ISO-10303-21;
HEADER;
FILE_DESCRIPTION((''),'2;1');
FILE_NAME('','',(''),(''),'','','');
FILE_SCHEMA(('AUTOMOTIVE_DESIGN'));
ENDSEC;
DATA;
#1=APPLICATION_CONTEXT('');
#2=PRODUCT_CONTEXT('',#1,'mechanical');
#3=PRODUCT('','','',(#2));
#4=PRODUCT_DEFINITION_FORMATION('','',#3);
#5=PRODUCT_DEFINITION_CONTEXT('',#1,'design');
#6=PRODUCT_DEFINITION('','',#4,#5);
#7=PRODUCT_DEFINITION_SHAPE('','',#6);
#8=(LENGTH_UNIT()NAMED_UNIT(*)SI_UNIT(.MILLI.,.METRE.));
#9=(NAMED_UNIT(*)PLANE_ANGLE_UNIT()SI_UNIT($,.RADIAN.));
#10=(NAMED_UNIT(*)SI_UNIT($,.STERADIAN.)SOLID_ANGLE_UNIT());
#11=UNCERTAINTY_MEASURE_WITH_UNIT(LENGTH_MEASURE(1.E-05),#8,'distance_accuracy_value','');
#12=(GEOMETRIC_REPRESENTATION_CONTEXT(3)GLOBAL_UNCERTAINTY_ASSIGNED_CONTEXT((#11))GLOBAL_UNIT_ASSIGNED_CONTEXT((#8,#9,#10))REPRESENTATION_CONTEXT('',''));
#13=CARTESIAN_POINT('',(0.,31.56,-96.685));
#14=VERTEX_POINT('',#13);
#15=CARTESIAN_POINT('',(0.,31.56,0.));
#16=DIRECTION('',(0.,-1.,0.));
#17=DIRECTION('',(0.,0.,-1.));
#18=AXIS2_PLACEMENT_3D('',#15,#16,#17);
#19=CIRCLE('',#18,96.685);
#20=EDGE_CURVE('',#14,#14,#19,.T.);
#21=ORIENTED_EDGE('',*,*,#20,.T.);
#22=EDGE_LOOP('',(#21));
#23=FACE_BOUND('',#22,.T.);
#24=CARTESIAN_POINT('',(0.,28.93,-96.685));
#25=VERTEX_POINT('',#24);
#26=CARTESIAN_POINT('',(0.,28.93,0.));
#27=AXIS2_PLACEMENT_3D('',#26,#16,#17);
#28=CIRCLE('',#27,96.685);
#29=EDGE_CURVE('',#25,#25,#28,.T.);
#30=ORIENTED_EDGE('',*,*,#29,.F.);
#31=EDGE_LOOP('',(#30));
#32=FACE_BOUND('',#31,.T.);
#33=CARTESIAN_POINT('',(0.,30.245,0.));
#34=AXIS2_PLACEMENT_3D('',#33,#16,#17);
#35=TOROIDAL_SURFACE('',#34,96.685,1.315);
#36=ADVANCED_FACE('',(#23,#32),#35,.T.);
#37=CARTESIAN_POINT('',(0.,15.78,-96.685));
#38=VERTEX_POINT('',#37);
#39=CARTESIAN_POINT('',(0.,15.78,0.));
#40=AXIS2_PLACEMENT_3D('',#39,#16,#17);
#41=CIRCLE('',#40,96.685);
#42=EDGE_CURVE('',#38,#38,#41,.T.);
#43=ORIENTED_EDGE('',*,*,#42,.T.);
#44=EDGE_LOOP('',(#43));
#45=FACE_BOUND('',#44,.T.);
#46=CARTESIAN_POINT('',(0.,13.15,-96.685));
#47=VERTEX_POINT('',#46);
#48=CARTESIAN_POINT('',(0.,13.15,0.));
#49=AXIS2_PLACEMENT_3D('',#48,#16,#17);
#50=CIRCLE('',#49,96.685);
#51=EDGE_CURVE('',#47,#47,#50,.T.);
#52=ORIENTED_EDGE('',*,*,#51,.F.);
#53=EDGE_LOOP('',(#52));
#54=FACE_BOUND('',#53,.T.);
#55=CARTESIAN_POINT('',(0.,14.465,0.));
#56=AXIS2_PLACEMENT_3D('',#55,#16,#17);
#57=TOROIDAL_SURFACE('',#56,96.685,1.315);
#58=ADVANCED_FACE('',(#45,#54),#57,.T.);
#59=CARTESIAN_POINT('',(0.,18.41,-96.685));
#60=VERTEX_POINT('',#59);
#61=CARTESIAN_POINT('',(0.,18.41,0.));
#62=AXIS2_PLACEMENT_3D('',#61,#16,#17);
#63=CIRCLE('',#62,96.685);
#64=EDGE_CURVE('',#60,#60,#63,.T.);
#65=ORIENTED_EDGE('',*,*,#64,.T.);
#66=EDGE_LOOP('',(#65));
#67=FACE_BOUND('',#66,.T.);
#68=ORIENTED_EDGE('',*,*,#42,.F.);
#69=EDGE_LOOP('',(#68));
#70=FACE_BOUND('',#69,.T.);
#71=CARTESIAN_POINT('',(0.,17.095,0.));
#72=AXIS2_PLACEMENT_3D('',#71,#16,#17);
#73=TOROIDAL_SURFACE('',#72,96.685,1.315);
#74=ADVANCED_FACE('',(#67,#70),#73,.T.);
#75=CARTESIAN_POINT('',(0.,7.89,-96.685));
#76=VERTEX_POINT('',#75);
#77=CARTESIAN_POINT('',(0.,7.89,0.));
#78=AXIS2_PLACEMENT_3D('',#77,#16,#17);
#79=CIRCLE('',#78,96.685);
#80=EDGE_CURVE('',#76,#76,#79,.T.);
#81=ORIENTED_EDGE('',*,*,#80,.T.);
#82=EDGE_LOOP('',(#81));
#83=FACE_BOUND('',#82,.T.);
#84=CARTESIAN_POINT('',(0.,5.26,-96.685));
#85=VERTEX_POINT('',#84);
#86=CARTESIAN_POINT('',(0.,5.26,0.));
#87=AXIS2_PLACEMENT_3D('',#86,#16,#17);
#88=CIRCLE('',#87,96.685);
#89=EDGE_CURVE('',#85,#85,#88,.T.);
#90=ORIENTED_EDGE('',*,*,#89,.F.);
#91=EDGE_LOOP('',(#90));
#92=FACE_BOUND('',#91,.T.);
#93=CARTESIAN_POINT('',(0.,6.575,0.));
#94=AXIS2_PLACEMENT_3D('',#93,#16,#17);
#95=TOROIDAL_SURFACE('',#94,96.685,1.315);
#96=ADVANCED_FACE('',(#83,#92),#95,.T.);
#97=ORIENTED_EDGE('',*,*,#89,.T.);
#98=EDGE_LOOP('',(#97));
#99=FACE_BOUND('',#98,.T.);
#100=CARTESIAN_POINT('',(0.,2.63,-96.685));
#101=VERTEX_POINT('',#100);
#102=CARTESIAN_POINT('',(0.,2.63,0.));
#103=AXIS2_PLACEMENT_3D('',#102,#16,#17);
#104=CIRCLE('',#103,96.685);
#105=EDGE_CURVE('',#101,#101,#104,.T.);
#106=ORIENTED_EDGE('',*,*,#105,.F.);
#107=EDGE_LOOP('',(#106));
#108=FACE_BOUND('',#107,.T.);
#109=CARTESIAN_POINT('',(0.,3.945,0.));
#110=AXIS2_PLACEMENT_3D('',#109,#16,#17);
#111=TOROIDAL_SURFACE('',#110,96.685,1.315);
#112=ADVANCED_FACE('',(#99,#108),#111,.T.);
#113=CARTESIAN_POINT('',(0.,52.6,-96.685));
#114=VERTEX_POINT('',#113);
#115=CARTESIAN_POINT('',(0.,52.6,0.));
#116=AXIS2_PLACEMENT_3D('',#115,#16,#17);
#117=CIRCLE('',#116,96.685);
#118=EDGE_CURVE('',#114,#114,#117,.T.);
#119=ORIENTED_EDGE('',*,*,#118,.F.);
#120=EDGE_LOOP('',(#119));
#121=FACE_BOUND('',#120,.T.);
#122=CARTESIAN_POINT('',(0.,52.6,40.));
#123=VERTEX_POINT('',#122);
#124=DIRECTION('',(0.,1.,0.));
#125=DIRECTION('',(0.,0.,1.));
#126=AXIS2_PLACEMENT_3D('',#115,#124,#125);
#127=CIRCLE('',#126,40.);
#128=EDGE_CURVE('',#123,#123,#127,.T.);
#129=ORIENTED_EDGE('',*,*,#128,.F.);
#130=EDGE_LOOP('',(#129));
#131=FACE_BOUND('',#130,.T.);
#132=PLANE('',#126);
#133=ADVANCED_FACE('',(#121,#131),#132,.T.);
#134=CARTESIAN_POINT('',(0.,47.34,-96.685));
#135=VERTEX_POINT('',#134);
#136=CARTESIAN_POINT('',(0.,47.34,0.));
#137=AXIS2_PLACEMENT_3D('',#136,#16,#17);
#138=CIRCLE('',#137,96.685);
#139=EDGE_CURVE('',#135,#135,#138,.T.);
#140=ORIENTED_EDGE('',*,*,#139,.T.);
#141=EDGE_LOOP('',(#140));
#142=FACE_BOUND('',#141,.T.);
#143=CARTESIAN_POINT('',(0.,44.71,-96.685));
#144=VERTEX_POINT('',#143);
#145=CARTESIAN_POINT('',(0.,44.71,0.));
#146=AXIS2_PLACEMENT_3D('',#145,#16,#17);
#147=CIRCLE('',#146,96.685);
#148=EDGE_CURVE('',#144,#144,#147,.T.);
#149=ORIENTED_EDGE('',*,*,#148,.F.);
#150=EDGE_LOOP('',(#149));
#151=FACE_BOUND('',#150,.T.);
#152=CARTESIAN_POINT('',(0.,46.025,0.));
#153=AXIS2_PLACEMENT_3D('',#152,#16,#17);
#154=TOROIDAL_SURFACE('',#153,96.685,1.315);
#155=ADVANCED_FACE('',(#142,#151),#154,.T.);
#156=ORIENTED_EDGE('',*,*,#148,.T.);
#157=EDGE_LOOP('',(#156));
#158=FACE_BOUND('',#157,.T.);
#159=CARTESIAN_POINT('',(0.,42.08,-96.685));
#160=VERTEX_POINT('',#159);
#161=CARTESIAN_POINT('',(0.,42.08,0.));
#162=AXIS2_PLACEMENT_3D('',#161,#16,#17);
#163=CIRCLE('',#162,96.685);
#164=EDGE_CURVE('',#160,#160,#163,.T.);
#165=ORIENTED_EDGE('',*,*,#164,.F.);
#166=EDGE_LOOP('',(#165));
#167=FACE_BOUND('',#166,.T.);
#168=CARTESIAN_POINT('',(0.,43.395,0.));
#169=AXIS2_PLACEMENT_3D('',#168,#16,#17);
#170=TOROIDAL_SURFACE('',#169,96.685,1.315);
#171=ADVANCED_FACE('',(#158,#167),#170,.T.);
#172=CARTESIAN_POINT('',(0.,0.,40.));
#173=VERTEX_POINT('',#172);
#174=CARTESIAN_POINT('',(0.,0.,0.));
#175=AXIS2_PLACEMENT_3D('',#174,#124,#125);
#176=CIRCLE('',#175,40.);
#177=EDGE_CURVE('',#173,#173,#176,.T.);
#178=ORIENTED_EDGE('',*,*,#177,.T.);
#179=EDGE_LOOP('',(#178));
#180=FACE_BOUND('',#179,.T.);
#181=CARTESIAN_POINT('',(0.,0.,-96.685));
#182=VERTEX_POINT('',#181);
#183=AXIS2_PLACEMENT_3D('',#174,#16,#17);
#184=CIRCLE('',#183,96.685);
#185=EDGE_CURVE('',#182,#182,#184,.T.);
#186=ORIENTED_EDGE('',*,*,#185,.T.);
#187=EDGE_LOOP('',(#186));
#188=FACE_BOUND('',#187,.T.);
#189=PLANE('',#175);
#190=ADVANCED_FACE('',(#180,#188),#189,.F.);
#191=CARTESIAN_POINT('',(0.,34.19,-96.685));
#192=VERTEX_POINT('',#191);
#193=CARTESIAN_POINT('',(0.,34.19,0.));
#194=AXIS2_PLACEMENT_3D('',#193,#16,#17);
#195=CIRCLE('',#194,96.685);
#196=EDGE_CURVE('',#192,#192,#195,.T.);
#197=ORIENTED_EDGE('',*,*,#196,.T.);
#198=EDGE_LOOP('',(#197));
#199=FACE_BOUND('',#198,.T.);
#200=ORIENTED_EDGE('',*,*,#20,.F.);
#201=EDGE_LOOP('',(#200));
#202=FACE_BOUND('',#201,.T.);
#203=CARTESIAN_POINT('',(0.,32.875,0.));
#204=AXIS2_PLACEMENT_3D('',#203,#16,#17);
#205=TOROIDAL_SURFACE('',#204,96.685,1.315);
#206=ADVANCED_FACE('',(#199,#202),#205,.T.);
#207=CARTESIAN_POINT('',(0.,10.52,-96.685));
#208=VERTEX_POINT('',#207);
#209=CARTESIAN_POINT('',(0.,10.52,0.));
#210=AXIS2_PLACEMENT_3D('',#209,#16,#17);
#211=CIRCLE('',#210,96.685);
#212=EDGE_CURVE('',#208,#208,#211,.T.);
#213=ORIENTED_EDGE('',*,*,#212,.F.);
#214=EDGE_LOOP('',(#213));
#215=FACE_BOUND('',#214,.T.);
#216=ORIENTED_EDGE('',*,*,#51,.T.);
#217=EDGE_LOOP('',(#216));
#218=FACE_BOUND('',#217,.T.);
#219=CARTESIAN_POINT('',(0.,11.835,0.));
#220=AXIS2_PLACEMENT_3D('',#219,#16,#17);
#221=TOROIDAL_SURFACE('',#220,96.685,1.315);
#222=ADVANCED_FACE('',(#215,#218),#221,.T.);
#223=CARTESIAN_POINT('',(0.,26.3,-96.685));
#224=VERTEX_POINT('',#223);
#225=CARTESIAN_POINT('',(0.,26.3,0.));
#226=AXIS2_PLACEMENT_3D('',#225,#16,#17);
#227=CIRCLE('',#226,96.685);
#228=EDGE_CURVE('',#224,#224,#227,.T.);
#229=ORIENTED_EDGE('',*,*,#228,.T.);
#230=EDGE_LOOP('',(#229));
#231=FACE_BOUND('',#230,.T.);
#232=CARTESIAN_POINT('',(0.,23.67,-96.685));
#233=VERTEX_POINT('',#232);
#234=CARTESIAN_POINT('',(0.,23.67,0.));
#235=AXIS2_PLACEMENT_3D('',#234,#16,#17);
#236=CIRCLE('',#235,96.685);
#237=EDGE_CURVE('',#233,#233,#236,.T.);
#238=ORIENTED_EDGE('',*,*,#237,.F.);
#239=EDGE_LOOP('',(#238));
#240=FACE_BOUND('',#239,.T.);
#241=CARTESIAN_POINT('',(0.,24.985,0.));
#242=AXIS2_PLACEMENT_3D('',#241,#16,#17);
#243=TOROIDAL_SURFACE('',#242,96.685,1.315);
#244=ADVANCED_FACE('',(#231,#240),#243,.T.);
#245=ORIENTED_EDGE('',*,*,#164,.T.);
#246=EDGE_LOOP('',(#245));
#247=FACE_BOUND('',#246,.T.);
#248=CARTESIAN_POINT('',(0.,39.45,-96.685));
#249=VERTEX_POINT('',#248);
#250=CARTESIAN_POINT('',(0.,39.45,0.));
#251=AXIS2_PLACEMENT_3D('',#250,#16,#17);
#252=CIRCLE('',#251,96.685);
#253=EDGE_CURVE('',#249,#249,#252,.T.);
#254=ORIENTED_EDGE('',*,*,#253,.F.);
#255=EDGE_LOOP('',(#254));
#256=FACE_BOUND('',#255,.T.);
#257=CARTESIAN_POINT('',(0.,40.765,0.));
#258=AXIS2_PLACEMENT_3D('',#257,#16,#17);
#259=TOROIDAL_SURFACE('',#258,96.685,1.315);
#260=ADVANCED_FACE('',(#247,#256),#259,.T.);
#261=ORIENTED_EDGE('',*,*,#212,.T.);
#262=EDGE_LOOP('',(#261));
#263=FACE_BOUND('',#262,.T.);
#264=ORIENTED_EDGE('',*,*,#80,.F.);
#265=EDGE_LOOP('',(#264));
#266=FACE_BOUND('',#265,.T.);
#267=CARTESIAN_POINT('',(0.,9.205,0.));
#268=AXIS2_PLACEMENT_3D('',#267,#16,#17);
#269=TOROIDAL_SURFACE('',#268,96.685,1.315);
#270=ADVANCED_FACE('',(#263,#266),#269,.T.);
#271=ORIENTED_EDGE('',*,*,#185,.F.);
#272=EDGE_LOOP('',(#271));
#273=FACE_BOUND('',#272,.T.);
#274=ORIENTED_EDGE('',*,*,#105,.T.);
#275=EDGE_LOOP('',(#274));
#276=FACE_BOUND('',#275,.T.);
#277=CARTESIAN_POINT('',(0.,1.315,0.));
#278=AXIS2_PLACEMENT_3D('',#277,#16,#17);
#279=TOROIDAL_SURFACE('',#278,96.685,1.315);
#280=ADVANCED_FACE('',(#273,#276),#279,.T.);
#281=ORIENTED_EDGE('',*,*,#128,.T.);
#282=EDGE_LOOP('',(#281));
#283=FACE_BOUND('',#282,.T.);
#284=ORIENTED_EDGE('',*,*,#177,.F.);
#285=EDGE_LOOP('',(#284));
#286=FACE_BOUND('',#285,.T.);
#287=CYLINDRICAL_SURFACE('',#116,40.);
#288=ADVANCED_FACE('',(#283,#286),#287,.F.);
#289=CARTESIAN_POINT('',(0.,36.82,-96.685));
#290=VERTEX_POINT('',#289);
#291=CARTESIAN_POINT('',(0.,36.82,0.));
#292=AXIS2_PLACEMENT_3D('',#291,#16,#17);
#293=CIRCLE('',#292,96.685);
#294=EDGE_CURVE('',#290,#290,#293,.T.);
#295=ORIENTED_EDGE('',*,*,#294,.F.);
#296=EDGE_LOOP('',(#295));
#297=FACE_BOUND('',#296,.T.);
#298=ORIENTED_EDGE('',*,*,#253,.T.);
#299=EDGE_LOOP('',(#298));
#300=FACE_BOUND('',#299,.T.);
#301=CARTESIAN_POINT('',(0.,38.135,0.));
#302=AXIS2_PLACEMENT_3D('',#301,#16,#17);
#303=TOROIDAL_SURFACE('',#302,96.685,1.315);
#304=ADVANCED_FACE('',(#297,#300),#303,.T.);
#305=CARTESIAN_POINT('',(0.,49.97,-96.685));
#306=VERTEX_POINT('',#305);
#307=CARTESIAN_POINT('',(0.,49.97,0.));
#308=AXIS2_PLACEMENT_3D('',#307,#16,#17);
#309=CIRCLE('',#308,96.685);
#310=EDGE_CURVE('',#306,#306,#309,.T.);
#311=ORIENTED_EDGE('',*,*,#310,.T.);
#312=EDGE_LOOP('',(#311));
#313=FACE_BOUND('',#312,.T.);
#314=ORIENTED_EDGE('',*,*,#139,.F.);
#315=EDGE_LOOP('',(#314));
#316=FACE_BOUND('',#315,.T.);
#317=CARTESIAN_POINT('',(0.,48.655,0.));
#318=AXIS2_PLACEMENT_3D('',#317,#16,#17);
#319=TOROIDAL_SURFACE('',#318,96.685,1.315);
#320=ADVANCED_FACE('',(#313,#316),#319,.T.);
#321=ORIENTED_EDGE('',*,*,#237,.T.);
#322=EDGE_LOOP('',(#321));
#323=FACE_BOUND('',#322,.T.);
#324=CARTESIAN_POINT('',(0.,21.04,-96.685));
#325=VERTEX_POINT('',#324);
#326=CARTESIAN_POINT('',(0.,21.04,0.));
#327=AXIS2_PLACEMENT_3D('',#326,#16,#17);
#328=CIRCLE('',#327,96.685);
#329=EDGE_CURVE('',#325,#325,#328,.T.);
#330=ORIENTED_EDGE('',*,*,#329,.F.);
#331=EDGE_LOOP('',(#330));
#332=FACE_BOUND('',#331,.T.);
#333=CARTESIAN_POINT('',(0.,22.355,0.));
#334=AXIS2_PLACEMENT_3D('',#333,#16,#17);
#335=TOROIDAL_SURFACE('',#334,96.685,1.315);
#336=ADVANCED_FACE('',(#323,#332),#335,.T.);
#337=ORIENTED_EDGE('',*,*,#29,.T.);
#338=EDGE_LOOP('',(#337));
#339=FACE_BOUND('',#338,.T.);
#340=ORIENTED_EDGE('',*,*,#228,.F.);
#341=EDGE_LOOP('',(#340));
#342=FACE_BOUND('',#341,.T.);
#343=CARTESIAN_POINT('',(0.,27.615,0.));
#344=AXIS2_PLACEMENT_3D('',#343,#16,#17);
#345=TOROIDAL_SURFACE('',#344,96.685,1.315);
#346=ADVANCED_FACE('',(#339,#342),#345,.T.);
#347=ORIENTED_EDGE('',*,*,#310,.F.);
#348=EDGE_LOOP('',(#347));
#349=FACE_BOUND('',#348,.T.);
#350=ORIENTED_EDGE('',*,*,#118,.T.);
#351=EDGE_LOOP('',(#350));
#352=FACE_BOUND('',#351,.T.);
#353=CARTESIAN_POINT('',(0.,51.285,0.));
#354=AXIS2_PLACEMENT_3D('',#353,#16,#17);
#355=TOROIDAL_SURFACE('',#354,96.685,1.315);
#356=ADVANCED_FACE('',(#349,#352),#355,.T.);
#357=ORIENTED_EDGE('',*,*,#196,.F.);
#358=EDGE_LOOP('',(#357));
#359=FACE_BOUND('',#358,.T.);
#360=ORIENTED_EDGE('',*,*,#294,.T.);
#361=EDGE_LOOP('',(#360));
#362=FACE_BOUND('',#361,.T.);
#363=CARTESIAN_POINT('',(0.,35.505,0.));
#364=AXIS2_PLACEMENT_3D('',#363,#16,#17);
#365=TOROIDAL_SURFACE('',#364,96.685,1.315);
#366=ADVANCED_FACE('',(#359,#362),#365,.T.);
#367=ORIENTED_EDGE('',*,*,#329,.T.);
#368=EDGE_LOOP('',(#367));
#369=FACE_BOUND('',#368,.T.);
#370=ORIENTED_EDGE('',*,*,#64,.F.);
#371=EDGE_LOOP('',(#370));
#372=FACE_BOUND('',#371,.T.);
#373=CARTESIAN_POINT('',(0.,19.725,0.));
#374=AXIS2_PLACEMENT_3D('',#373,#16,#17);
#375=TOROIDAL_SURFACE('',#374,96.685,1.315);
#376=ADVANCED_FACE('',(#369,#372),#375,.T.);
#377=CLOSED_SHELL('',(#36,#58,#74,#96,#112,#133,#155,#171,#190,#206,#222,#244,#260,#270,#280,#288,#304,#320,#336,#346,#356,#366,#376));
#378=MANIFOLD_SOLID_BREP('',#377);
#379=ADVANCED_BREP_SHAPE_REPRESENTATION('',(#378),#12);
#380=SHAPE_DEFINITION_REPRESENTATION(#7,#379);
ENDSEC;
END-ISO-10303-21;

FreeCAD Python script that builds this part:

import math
import FreeCAD as App
import Part
import Sketcher

V = App.Vector
Q = App.Units.Quantity

doc = App.newDocument("Part")
body = doc.addObject("PartDesign::Body", "Body")

sketch1 = body.newObject("Sketcher::SketchObject", "Sketch")
sketch1.AttachmentSupport = (doc.getObject("XZ_Plane"), [""])
sketch1.MapMode = "FlatFace"
sketch1.addGeometry(Part.Circle(V(0, 0, 0), V(0, 0, 1), 98), False)
sketch1.addGeometry(Part.Circle(V(0, 0, 0), V(0, 0, 1), 40), False)
sketch1.addConstraint(Sketcher.Constraint("Coincident", 0, 3, -1, 1))
sketch1.addConstraint(Sketcher.Constraint("Coincident", 1, 3, -1, 1))
sketch1.addConstraint(Sketcher.Constraint("Diameter", 0, Q("196 mm")))
sketch1.addConstraint(Sketcher.Constraint("Diameter", 1, Q("80 mm")))
pad1 = body.newObject("PartDesign::Pad", "Pad")
pad1.Profile = sketch1
pad1.Length = 52.6
pad1.Reversed = True

sketch2 = body.newObject("Sketcher::SketchObject", "Sketch001")
sketch2.AttachmentSupport = (doc.getObject("XY_Plane"), [""])
sketch2.MapMode = "FlatFace"
sketch2.addGeometry(Part.LineSegment(V(-101.5, 52.6, 0), V(-101.5, 0, 0)), False)
sketch2.addGeometry(Part.LineSegment(V(-101.5, 0, 0), V(-96.7, 0, 0)), False)
sketch2.addGeometry(Part.ArcOfCircle(Part.Circle(V(-96.7, 1.3, 0), V(0, 0, 1), 1.3), math.radians(90), math.radians(270)), False)
sketch2.addGeometry(Part.ArcOfCircle(Part.Circle(V(-96.7, 3.9, 0), V(0, 0, 1), 1.3), math.radians(90), math.radians(270)), False)
sketch2.addGeometry(Part.ArcOfCircle(Part.Circle(V(-96.7, 6.6, 0), V(0, 0, 1), 1.3), math.radians(90), math.radians(270)), False)
sketch2.addGeometry(Part.ArcOfCircle(Part.Circle(V(-96.7, 9.2, 0), V(0, 0, 1), 1.3), math.radians(90), math.radians(270)), False)
sketch2.addGeometry(Part.ArcOfCircle(Part.Circle(V(-96.7, 11.8, 0), V(0, 0, 1), 1.3), math.radians(90), math.radians(270)), False)
sketch2.addGeometry(Part.ArcOfCircle(Part.Circle(V(-96.7, 14.5, 0), V(0, 0, 1), 1.3), math.radians(90), math.radians(270)), False)
sketch2.addGeometry(Part.ArcOfCircle(Part.Circle(V(-96.7, 17.1, 0), V(0, 0, 1), 1.3), math.radians(90), math.radians(270)), False)
sketch2.addGeometry(Part.ArcOfCircle(Part.Circle(V(-96.7, 19.7, 0), V(0, 0, 1), 1.3), math.radians(90), math.radians(270)), False)
sketch2.addGeometry(Part.ArcOfCircle(Part.Circle(V(-96.7, 22.4, 0), V(0, 0, 1), 1.3), math.radians(90), math.radians(270)), False)
sketch2.addGeometry(Part.ArcOfCircle(Part.Circle(V(-96.7, 25, 0), V(0, 0, 1), 1.3), math.radians(90), math.radians(270)), False)
sketch2.addGeometry(Part.ArcOfCircle(Part.Circle(V(-96.7, 27.6, 0), V(0, 0, 1), 1.3), math.radians(90), math.radians(270)), False)
sketch2.addGeometry(Part.ArcOfCircle(Part.Circle(V(-96.7, 30.2, 0), V(0, 0, 1), 1.3), math.radians(90), math.radians(270)), False)
sketch2.addGeometry(Part.ArcOfCircle(Part.Circle(V(-96.7, 32.9, 0), V(0, 0, 1), 1.3), math.radians(90), math.radians(270)), False)
sketch2.addGeometry(Part.ArcOfCircle(Part.Circle(V(-96.7, 35.5, 0), V(0, 0, 1), 1.3), math.radians(90), math.radians(270)), False)
sketch2.addGeometry(Part.ArcOfCircle(Part.Circle(V(-96.7, 38.1, 0), V(0, 0, 1), 1.3), math.radians(90), math.radians(270)), False)
sketch2.addGeometry(Part.ArcOfCircle(Part.Circle(V(-96.7, 40.8, 0), V(0, 0, 1), 1.3), math.radians(90), math.radians(270)), False)
sketch2.addGeometry(Part.ArcOfCircle(Part.Circle(V(-96.7, 43.4, 0), V(0, 0, 1), 1.3), math.radians(90), math.radians(270)), False)
sketch2.addGeometry(Part.ArcOfCircle(Part.Circle(V(-96.7, 46, 0), V(0, 0, 1), 1.3), math.radians(90), math.radians(270)), False)
sketch2.addGeometry(Part.ArcOfCircle(Part.Circle(V(-96.7, 48.7, 0), V(0, 0, 1), 1.3), math.radians(90), math.radians(270)), False)
sketch2.addGeometry(Part.ArcOfCircle(Part.Circle(V(-96.7, 51.3, 0), V(0, 0, 1), 1.3), math.radians(90), math.radians(270)), False)
sketch2.addGeometry(Part.LineSegment(V(-96.7, 52.6, 0), V(-101.5, 52.6, 0)), False)
sketch2.addConstraint(Sketcher.Constraint("Coincident", 0, 2, 1, 1))
sketch2.addConstraint(Sketcher.Constraint("Tangent", 1, 2, 2, 2))
sketch2.addConstraint(Sketcher.Constraint("Tangent", 2, 1, 3, 2))
sketch2.addConstraint(Sketcher.Constraint("Tangent", 3, 1, 4, 2))
sketch2.addConstraint(Sketcher.Constraint("Tangent", 4, 1, 5, 2))
sketch2.addConstraint(Sketcher.Constraint("Tangent", 5, 1, 6, 2))
sketch2.addConstraint(Sketcher.Constraint("Tangent", 6, 1, 7, 2))
sketch2.addConstraint(Sketcher.Constraint("Tangent", 7, 1, 8, 2))
sketch2.addConstraint(Sketcher.Constraint("Tangent", 8, 1, 9, 2))
sketch2.addConstraint(Sketcher.Constraint("Tangent", 9, 1, 10, 2))
sketch2.addConstraint(Sketcher.Constraint("Tangent", 10, 1, 11, 2))
sketch2.addConstraint(Sketcher.Constraint("Tangent", 11, 1, 12, 2))
sketch2.addConstraint(Sketcher.Constraint("Tangent", 12, 1, 13, 2))
sketch2.addConstraint(Sketcher.Constraint("Tangent", 13, 1, 14, 2))
sketch2.addConstraint(Sketcher.Constraint("Tangent", 14, 1, 15, 2))
sketch2.addConstraint(Sketcher.Constraint("Tangent", 15, 1, 16, 2))
sketch2.addConstraint(Sketcher.Constraint("Tangent", 16, 1, 17, 2))
sketch2.addConstraint(Sketcher.Constraint("Tangent", 17, 1, 18, 2))
sketch2.addConstraint(Sketcher.Constraint("Tangent", 18, 1, 19, 2))
sketch2.addConstraint(Sketcher.Constraint("Tangent", 19, 1, 20, 2))
sketch2.addConstraint(Sketcher.Constraint("Tangent", 20, 1, 21, 2))
sketch2.addConstraint(Sketcher.Constraint("Tangent", 21, 1, 22, 1))
sketch2.addConstraint(Sketcher.Constraint("Coincident", 22, 2, 0, 1))
sketch2.addConstraint(Sketcher.Constraint("Vertical", 0))
sketch2.addConstraint(Sketcher.Constraint("Horizontal", 1))
sketch2.addConstraint(Sketcher.Constraint("Horizontal", 22))
sketch2.addConstraint(Sketcher.Constraint("Equal", 2, 3))
sketch2.addConstraint(Sketcher.Constraint("Equal", 3, 4))
sketch2.addConstraint(Sketcher.Constraint("Equal", 4, 5))
sketch2.addConstraint(Sketcher.Constraint("Equal", 5, 6))
sketch2.addConstraint(Sketcher.Constraint("Equal", 6, 7))
sketch2.addConstraint(Sketcher.Constraint("Equal", 7, 8))
sketch2.addConstraint(Sketcher.Constraint("Equal", 8, 9))
sketch2.addConstraint(Sketcher.Constraint("Equal", 9, 10))
sketch2.addConstraint(Sketcher.Constraint("Equal", 10, 11))
sketch2.addConstraint(Sketcher.Constraint("Equal", 11, 12))
sketch2.addConstraint(Sketcher.Constraint("Equal", 12, 13))
sketch2.addConstraint(Sketcher.Constraint("Equal", 13, 14))
sketch2.addConstraint(Sketcher.Constraint("Equal", 14, 15))
sketch2.addConstraint(Sketcher.Constraint("Equal", 15, 16))
sketch2.addConstraint(Sketcher.Constraint("Equal", 16, 17))
sketch2.addConstraint(Sketcher.Constraint("Equal", 17, 18))
sketch2.addConstraint(Sketcher.Constraint("Equal", 18, 19))
sketch2.addConstraint(Sketcher.Constraint("Equal", 19, 20))
sketch2.addConstraint(Sketcher.Constraint("Equal", 20, 21))
sketch2.addConstraint(Sketcher.Constraint("PointOnObject", 0, 2, -1))
sketch2.addConstraint(Sketcher.Constraint("Vertical", 2, 3, 3, 3))
sketch2.addConstraint(Sketcher.Constraint("Vertical", 3, 3, 4, 3))
sketch2.addConstraint(Sketcher.Constraint("Vertical", 4, 3, 5, 3))
sketch2.addConstraint(Sketcher.Constraint("Vertical", 5, 3, 6, 3))
sketch2.addConstraint(Sketcher.Constraint("Vertical", 6, 3, 7, 3))
sketch2.addConstraint(Sketcher.Constraint("Vertical", 7, 3, 8, 3))
sketch2.addConstraint(Sketcher.Constraint("Vertical", 8, 3, 9, 3))
sketch2.addConstraint(Sketcher.Constraint("Vertical", 9, 3, 10, 3))
sketch2.addConstraint(Sketcher.Constraint("Vertical", 10, 3, 11, 3))
sketch2.addConstraint(Sketcher.Constraint("Vertical", 11, 3, 12, 3))
sketch2.addConstraint(Sketcher.Constraint("Vertical", 12, 3, 13, 3))
sketch2.addConstraint(Sketcher.Constraint("Vertical", 13, 3, 14, 3))
sketch2.addConstraint(Sketcher.Constraint("Vertical", 14, 3, 15, 3))
sketch2.addConstraint(Sketcher.Constraint("Vertical", 15, 3, 16, 3))
sketch2.addConstraint(Sketcher.Constraint("Vertical", 16, 3, 17, 3))
sketch2.addConstraint(Sketcher.Constraint("Vertical", 17, 3, 18, 3))
sketch2.addConstraint(Sketcher.Constraint("Vertical", 18, 3, 19, 3))
sketch2.addConstraint(Sketcher.Constraint("Vertical", 19, 3, 20, 3))
sketch2.addConstraint(Sketcher.Constraint("Vertical", 20, 3, 21, 3))
sketch2.addConstraint(Sketcher.Constraint("DistanceY", 0, 2, 0, 1, Q("52.6 mm")))
sketch2.addConstraint(Sketcher.Constraint("DistanceX", 2, 3, -1, 1, Q("96.685 mm")))
sketch2.addConstraint(Sketcher.Constraint("DistanceX", 1, 1, 1, 2, Q("4.862865 mm")))
groove = body.newObject("PartDesign::Groove", "Groove")
groove.Profile = sketch2
groove.ReferenceAxis = (sketch2, ["V_Axis"])
groove.Angle = 360

doc.recompute()
